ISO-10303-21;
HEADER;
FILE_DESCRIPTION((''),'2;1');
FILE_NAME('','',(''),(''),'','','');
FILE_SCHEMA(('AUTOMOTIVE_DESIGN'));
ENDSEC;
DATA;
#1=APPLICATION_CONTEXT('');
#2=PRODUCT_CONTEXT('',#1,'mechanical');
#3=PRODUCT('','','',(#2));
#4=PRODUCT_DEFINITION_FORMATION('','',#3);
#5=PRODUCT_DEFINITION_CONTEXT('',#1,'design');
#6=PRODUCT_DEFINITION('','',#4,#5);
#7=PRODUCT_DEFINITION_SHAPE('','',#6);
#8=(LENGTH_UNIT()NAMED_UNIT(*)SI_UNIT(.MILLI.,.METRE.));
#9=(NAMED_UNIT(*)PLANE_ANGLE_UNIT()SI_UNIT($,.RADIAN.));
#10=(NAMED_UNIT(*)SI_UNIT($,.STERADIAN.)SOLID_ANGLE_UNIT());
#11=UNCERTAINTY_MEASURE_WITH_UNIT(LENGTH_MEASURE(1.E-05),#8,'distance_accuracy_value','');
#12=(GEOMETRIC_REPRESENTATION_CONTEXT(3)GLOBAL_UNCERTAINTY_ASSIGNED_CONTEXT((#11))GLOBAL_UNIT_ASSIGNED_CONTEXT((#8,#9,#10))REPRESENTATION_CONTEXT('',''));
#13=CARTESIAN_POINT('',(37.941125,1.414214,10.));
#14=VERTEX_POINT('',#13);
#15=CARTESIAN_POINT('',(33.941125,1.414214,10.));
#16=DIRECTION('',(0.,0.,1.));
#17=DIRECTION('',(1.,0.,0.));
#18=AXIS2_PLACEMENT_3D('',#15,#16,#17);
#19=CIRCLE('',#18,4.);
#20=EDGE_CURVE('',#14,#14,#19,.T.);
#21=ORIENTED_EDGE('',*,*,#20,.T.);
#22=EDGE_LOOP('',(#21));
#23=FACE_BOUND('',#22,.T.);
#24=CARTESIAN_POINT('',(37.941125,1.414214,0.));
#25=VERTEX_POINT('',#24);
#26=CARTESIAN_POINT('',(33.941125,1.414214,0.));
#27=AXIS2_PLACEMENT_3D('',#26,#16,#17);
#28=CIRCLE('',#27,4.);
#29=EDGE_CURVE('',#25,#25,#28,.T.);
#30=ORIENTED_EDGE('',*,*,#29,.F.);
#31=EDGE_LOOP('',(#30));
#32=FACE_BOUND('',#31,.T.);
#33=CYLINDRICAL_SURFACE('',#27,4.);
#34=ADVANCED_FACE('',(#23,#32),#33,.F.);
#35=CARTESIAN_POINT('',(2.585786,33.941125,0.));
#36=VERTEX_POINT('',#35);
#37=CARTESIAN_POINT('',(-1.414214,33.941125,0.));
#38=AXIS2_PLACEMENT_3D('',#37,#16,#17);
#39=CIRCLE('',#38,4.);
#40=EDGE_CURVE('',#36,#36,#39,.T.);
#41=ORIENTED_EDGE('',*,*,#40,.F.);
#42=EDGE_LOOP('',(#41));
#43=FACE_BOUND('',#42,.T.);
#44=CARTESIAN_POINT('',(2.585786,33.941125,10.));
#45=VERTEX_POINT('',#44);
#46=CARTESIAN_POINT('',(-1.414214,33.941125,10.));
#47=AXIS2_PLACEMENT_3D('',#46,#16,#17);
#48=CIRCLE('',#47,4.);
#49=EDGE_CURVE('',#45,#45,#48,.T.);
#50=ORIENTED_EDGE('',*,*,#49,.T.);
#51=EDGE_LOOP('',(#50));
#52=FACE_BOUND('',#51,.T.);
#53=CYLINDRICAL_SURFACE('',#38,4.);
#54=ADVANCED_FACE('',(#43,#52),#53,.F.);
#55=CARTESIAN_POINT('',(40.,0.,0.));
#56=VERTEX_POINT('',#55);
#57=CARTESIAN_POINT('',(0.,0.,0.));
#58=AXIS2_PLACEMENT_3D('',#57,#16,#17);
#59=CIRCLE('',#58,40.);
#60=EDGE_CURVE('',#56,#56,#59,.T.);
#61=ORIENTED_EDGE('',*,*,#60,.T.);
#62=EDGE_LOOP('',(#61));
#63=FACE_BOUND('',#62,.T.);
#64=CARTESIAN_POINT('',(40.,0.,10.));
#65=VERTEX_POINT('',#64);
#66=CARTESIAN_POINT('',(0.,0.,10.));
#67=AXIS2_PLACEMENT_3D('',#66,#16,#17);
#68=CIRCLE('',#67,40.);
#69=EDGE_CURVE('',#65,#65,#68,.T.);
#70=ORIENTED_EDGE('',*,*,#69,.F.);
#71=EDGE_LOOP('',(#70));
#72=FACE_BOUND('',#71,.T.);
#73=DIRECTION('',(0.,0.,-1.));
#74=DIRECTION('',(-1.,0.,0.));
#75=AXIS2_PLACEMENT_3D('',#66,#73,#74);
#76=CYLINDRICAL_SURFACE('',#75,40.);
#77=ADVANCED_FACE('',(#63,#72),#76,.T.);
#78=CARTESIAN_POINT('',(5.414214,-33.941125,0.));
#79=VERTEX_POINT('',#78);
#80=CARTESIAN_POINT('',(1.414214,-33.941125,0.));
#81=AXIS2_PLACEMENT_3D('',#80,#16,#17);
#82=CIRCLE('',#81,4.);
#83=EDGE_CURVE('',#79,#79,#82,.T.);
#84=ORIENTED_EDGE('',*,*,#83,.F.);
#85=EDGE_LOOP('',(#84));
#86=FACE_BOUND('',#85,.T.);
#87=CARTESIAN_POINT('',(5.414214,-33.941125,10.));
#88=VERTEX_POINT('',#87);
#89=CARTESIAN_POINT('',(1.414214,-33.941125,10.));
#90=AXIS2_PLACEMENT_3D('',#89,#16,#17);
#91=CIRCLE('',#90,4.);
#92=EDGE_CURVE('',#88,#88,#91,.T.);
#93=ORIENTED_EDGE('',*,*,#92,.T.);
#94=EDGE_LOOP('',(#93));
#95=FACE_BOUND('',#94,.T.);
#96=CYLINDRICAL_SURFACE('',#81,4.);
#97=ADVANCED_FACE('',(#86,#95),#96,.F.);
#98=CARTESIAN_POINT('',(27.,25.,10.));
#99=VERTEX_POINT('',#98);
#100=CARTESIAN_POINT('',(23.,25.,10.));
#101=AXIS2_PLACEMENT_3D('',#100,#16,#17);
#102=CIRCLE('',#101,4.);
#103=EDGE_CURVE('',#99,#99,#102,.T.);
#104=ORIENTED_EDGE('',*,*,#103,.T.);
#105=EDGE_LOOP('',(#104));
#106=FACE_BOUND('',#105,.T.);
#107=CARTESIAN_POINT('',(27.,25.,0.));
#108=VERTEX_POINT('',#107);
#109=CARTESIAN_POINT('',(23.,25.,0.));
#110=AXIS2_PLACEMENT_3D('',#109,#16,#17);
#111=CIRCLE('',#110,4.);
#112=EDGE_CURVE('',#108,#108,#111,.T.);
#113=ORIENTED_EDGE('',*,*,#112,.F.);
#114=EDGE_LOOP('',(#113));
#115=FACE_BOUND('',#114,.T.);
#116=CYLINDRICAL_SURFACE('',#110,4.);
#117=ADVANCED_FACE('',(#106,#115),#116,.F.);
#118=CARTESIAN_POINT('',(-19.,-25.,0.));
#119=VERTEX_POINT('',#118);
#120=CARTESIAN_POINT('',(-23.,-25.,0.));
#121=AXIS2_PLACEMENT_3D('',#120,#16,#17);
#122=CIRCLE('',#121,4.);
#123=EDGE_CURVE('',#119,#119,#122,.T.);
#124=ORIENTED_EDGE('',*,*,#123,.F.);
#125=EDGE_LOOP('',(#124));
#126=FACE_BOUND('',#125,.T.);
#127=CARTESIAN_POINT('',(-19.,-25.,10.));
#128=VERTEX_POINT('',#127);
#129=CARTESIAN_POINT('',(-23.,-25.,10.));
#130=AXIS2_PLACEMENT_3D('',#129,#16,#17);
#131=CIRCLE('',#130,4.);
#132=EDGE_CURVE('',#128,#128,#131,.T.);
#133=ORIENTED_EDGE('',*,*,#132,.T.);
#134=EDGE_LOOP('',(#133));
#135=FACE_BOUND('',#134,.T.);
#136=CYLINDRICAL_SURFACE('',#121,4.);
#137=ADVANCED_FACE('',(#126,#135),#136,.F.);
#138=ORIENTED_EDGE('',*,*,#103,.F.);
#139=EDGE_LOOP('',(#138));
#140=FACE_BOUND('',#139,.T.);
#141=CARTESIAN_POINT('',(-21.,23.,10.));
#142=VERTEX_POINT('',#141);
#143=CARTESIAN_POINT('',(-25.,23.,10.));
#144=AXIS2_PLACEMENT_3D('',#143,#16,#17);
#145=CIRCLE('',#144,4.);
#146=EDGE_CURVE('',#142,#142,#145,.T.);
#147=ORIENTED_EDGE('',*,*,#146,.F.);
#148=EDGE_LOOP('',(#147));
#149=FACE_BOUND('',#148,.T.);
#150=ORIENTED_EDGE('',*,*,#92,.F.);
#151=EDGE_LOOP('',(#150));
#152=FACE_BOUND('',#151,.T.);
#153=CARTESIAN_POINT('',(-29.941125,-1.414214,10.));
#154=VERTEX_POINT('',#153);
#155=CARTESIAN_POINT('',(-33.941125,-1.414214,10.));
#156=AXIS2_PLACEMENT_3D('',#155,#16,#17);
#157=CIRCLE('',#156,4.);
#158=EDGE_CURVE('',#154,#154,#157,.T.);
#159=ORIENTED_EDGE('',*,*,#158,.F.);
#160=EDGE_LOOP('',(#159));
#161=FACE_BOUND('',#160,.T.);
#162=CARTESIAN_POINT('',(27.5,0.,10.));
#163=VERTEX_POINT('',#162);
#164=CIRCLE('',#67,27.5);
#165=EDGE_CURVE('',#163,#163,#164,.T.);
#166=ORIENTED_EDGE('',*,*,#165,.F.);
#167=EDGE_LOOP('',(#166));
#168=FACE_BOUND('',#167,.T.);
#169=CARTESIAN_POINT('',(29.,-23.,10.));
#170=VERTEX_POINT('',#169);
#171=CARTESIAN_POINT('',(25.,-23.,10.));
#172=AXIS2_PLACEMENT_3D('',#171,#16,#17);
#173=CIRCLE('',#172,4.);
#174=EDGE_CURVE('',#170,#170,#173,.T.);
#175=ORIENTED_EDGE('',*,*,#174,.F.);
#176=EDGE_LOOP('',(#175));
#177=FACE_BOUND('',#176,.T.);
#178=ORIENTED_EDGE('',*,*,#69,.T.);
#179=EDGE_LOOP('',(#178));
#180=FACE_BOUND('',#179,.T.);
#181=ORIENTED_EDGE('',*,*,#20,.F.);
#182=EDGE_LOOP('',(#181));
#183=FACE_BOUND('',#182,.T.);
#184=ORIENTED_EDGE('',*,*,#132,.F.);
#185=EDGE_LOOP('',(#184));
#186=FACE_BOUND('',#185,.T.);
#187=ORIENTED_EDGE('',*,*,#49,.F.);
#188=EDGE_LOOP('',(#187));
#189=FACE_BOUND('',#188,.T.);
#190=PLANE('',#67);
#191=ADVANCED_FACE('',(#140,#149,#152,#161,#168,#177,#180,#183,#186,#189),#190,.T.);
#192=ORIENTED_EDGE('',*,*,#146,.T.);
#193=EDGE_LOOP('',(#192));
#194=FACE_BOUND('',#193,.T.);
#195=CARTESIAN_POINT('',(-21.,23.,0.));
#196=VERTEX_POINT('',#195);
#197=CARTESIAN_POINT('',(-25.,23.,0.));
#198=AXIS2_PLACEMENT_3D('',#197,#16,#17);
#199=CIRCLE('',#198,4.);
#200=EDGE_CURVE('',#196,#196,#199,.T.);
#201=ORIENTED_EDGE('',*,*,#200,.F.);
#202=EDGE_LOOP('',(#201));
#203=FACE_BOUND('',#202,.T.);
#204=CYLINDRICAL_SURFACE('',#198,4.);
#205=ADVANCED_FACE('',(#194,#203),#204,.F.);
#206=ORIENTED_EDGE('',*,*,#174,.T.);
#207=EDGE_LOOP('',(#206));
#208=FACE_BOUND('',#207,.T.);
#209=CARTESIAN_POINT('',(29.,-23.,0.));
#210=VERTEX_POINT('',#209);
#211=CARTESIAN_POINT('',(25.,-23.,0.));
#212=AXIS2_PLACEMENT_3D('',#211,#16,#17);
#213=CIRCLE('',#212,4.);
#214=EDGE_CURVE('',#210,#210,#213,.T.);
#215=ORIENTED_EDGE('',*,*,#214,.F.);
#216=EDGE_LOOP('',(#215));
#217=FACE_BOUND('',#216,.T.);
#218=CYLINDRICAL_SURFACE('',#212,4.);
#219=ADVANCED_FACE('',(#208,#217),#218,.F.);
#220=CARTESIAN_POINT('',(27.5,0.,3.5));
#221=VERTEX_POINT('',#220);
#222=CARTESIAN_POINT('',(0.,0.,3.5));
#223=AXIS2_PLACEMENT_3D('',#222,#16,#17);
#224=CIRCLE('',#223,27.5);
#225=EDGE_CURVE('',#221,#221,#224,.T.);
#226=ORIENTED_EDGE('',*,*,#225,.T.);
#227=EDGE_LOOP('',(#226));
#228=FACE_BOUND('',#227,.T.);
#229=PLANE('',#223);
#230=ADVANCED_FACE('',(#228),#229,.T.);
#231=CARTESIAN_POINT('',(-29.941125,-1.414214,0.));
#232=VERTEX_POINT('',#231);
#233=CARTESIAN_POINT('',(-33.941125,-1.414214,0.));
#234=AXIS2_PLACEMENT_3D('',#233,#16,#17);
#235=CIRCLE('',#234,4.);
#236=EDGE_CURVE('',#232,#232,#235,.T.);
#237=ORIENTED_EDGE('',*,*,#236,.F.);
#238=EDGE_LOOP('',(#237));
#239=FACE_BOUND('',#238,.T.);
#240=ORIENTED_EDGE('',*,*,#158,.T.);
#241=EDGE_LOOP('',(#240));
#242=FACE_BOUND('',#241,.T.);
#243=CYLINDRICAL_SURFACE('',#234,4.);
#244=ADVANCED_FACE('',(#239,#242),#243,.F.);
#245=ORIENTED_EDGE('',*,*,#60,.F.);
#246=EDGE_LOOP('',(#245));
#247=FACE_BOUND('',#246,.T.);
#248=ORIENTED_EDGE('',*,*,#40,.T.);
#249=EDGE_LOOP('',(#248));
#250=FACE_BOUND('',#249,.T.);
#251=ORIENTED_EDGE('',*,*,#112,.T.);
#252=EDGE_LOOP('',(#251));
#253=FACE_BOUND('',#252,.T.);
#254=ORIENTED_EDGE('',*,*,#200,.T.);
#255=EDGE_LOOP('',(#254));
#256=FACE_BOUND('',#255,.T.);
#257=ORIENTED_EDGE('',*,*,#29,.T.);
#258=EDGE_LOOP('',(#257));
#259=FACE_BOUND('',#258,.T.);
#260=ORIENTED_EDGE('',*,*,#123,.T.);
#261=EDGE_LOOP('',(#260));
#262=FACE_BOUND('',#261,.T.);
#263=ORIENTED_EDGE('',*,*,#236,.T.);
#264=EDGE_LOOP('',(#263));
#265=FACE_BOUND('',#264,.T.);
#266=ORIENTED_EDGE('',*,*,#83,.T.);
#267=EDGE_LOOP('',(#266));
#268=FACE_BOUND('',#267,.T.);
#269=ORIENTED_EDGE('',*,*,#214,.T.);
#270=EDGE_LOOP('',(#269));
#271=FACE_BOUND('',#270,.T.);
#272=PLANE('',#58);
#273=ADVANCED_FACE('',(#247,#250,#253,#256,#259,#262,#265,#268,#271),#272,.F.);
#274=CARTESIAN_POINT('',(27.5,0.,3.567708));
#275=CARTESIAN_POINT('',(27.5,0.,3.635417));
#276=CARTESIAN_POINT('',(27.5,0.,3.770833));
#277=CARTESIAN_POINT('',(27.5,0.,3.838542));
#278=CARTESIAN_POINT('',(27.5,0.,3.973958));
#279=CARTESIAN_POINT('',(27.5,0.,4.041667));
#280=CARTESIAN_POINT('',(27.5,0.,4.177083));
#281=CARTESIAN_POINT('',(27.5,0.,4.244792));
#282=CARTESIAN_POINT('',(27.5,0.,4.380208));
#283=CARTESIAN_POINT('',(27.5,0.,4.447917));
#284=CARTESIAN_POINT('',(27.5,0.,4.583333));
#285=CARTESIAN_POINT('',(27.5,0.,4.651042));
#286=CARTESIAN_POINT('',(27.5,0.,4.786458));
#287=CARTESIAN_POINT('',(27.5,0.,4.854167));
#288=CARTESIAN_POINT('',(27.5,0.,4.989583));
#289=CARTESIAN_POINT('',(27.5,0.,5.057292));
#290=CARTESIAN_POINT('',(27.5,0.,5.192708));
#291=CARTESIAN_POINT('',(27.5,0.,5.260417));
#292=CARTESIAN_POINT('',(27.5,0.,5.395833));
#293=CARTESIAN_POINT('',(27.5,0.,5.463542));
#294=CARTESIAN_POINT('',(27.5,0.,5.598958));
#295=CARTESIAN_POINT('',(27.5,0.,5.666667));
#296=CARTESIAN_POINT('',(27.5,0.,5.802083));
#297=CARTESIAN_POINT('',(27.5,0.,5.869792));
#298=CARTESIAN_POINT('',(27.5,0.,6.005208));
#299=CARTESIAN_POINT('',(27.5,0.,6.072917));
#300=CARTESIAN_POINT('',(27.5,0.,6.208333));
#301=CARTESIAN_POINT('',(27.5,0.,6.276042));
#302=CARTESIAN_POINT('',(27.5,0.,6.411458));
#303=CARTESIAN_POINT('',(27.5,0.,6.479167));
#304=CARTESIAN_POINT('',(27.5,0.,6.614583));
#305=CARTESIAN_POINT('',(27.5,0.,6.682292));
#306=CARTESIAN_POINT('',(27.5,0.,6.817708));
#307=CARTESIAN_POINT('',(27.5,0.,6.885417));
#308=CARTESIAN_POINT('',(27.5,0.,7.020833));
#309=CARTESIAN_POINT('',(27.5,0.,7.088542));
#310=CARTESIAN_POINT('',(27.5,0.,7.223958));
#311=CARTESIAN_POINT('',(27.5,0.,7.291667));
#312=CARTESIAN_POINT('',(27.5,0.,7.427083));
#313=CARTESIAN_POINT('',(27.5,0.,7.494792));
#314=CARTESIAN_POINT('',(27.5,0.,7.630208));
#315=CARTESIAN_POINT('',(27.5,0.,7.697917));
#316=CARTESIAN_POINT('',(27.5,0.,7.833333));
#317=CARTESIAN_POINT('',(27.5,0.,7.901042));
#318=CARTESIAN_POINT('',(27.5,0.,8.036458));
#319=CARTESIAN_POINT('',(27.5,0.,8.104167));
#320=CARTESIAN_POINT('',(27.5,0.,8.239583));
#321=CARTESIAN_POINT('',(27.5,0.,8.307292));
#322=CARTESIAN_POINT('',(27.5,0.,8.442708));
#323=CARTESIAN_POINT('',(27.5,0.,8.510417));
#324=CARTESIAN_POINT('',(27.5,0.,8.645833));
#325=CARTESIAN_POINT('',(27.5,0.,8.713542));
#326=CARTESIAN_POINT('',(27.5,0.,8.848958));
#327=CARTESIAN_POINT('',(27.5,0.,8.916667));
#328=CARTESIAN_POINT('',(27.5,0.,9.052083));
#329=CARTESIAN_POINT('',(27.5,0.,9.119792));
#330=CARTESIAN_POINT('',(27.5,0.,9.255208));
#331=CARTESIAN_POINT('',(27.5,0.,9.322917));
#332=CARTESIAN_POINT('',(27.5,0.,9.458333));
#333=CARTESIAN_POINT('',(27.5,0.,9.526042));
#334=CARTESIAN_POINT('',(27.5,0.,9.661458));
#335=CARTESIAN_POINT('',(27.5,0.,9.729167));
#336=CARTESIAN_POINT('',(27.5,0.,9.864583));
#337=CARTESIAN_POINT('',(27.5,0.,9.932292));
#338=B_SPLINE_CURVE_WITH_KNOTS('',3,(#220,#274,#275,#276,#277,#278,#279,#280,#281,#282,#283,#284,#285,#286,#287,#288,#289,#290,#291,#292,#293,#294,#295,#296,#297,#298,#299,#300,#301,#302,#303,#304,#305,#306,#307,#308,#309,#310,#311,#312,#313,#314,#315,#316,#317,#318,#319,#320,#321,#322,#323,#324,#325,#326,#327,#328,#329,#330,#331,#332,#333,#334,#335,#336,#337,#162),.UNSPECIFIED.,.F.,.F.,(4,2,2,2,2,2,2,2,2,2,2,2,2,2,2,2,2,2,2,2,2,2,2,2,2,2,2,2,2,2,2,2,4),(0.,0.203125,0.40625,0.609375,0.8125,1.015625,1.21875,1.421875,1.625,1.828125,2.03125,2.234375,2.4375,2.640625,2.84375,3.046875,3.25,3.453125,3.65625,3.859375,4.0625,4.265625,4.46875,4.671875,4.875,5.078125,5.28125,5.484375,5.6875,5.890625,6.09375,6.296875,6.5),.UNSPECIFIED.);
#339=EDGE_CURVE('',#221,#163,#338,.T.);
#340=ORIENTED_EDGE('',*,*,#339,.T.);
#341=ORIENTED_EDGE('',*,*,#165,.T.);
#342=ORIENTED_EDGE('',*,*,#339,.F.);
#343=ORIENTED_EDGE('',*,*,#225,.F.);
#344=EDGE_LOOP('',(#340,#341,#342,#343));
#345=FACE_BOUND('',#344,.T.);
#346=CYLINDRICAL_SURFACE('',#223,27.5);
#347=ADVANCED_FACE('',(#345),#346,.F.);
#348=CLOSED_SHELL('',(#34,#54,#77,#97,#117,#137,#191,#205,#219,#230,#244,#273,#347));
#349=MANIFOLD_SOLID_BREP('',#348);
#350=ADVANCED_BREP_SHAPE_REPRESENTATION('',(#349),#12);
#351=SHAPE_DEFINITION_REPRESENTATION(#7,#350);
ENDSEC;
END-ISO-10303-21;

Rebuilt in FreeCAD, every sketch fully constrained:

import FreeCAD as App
import Part
import Sketcher

doc = App.newDocument("Part")
params = doc.addObject("Spreadsheet::Sheet", "Params")
for row, (alias, value) in enumerate([
    ("sketch1_diameter", "80 mm"),
    ("pad1_length", "10 mm"),
    ("sketch2_diameter", "55 mm"),
    ("pocket1_length", "6.5 mm"),
    ("sketch3_diameter", "8 mm"),
], start=1):
    params.set(f"A{row}", alias)
    params.set(f"B{row}", "=" + value)
    params.setAlias(f"B{row}", alias)

body = doc.addObject("PartDesign::Body", "Body")

# Sketch on XY plane
sketch1 = body.newObject("Sketcher::SketchObject", "Sketch")
sketch1.AttachmentSupport = (doc.getObject("XY_Plane"), [""])
sketch1.MapMode = "FlatFace"
sketch1.addGeometry(Part.Circle(App.Vector(0, 0, 0), App.Vector(0, 0, 1), 40), False)
sketch1.addConstraint([
    Sketcher.Constraint("Coincident", 0, 3, -1, 1),
    Sketcher.Constraint("Diameter", 0, 80.0),
])
sketch1.setExpression("Constraints[1]", "Params.sketch1_diameter")
pad1 = body.newObject("PartDesign::Pad", "Pad")
pad1.Profile = sketch1
pad1.setExpression("Length", "Params.pad1_length")

# Sketch on XY plane
sketch2 = body.newObject("Sketcher::SketchObject", "Sketch001")
sketch2.AttachmentSupport = (doc.getObject("XY_Plane"), [""])
sketch2.MapMode = "FlatFace"
sketch2.AttachmentOffset = App.Placement(App.Vector(0, 0, 10), App.Rotation())
sketch2.addGeometry(Part.Circle(App.Vector(0, 0, 0), App.Vector(0, 0, 1), 27.5), False)
sketch2.addConstraint([
    Sketcher.Constraint("Coincident", 0, 3, -1, 1),
    Sketcher.Constraint("Diameter", 0, 55.0),
])
sketch2.setExpression("Constraints[1]", "Params.sketch2_diameter")
pocket1 = body.newObject("PartDesign::Pocket", "Pocket")
pocket1.Profile = sketch2
pocket1.setExpression("Length", "Params.pocket1_length")

# Sketch on XY plane
sketch3 = body.newObject("Sketcher::SketchObject", "Sketch002")
sketch3.AttachmentSupport = (doc.getObject("XY_Plane"), [""])
sketch3.MapMode = "FlatFace"
sketch3.AttachmentOffset = App.Placement(App.Vector(0, 0, 10), App.Rotation())
sketch3.addGeometry([
    Part.Circle(App.Vector(-25, 23, 0), App.Vector(0, 0, 1), 4),  # 0
    Part.Circle(App.Vector(-1.414214, 33.941125, 0), App.Vector(0, 0, 1), 4),  # 1
    Part.Circle(App.Vector(23, 25, 0), App.Vector(0, 0, 1), 4),  # 2
    Part.Circle(App.Vector(33.941125, 1.414214, 0), App.Vector(0, 0, 1), 4),  # 3
    Part.Circle(App.Vector(25, -23, 0), App.Vector(0, 0, 1), 4),  # 4
    Part.Circle(App.Vector(1.414214, -33.941125, 0), App.Vector(0, 0, 1), 4),  # 5
    Part.Circle(App.Vector(-23, -25, 0), App.Vector(0, 0, 1), 4),  # 6
    Part.Circle(App.Vector(-33.941125, -1.414214, 0), App.Vector(0, 0, 1), 4),  # 7
], False)
sketch3.addConstraint([
    Sketcher.Constraint("Equal", 0, 1),
    Sketcher.Constraint("Equal", 1, 2),
    Sketcher.Constraint("Equal", 2, 3),
    Sketcher.Constraint("Equal", 3, 4),
    Sketcher.Constraint("Equal", 4, 5),
    Sketcher.Constraint("Equal", 5, 6),
    Sketcher.Constraint("Equal", 6, 7),
    Sketcher.Constraint("Symmetric", 0, 3, 4, 3, -1, 1),
    Sketcher.Constraint("Symmetric", 1, 3, 5, 3, -1, 1),
    Sketcher.Constraint("Symmetric", 2, 3, 6, 3, -1, 1),
    Sketcher.Constraint("Symmetric", 3, 3, 7, 3, -1, 1),
    Sketcher.Constraint("Diameter", 0, 8.0),
    Sketcher.Constraint("DistanceX", 0, 3, -1, 1, 25.0),
    Sketcher.Constraint("DistanceY", -1, 1, 0, 3, 23.0),
    Sketcher.Constraint("DistanceX", -1, 1, 2, 3, 23.0),
    Sketcher.Constraint("DistanceY", -1, 1, 2, 3, 25.0),
    Sketcher.Constraint("DistanceX", 1, 3, 3, 3, 35.355339),
    Sketcher.Constraint("DistanceY", 3, 3, 1, 3, 32.526912),
    Sketcher.Constraint("DistanceX", 5, 3, 3, 3, 32.526912),
    Sketcher.Constraint("DistanceY", 5, 3, 3, 3, 35.355339),
])
sketch3.setExpression("Constraints[11]", "Params.sketch3_diameter")
pocket2 = body.newObject("PartDesign::Pocket", "Pocket001")
pocket2.Profile = sketch3
pocket2.Type = "ThroughAll"

doc.recompute()
